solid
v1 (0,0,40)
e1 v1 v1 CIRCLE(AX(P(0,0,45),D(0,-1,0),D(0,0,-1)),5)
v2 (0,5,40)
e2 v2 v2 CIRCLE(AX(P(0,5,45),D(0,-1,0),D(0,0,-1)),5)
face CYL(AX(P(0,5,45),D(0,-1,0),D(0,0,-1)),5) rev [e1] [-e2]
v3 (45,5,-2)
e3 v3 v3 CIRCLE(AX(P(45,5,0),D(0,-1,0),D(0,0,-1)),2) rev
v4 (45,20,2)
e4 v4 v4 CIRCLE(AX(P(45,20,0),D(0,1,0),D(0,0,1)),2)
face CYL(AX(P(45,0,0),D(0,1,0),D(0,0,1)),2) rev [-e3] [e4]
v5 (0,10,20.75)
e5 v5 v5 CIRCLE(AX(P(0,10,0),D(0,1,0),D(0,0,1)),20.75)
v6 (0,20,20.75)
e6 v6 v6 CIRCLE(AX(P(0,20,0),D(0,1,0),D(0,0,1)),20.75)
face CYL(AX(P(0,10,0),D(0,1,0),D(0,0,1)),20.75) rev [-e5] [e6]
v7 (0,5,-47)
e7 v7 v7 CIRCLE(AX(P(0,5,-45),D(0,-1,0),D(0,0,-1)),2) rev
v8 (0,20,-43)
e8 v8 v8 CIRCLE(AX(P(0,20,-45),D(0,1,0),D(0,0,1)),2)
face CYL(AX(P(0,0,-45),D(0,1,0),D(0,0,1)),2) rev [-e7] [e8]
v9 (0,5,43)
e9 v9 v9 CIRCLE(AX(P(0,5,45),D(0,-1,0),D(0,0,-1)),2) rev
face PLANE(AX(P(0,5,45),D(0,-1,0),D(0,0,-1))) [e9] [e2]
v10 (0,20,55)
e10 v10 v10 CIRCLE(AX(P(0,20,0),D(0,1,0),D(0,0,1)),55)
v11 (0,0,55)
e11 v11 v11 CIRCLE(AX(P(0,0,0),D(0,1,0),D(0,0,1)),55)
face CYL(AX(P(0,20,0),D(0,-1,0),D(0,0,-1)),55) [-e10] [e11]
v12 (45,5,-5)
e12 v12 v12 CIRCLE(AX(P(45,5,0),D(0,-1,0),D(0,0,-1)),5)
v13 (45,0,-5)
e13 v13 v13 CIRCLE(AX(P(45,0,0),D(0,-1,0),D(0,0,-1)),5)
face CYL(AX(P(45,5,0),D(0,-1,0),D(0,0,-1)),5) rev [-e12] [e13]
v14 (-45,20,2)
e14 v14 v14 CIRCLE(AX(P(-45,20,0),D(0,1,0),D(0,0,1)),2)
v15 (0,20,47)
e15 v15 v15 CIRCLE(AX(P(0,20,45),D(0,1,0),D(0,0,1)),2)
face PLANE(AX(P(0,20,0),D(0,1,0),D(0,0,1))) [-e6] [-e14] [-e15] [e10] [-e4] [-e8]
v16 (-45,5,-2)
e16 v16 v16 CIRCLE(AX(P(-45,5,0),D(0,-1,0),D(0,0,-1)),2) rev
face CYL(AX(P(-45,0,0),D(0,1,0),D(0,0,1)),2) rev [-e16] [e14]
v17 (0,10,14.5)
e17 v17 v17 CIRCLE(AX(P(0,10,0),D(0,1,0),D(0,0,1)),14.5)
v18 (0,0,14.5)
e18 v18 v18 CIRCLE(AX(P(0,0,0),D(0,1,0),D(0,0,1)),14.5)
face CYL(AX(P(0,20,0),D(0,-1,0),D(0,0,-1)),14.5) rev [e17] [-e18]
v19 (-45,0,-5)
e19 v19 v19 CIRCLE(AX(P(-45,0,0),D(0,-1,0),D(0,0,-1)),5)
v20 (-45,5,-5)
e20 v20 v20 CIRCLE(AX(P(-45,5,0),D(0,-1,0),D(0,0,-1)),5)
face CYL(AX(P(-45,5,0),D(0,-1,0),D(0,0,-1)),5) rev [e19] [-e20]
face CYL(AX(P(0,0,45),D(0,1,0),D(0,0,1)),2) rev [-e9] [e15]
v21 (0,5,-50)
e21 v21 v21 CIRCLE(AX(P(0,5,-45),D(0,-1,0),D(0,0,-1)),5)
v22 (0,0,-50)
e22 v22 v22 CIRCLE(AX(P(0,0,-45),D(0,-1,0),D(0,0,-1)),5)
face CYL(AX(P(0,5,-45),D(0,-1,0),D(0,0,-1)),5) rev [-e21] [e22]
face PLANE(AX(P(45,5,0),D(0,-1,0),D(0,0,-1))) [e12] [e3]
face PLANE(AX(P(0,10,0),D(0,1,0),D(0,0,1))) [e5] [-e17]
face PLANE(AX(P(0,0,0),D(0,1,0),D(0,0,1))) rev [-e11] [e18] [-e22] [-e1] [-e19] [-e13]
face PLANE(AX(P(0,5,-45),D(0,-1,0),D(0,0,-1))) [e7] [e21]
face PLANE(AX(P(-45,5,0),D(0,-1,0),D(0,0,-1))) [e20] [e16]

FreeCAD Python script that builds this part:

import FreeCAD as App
import Part
import Sketcher

doc = App.newDocument("Part")
params = doc.addObject("Spreadsheet::Sheet", "Params")
for row, (alias, value) in enumerate([
    ("sketch1_diameter", "110 mm"),
    ("sketch1_diameter2", "29 mm"),
    ("pad1_length", "20 mm"),
    ("sketch2_diameter", "41.5 mm"),
    ("pocket1_length", "10 mm"),
    ("sketch3_diameter", "4 mm"),
    ("pocket2_length", "20 mm"),
    ("sketch4_diameter", "10 mm"),
    ("pocket3_length", "5 mm"),
], start=1):
    params.set(f"A{row}", alias)
    params.set(f"B{row}", "=" + value)
    params.setAlias(f"B{row}", alias)

body = doc.addObject("PartDesign::Body", "Body")

sketch1 = body.newObject("Sketcher::SketchObject", "Sketch")
sketch1.AttachmentSupport = (doc.getObject("XZ_Plane"), [""])
sketch1.MapMode = "FlatFace"
sketch1.addGeometry([
    Part.Circle(App.Vector(0, 0, 0), App.Vector(0, 0, 1), 55),
    Part.Circle(App.Vector(0, 0, 0), App.Vector(0, 0, 1), 14.5),
], False)
sketch1.addConstraint([
    Sketcher.Constraint("Coincident", 0, 3, -1, 1),
    Sketcher.Constraint("Coincident", 1, 3, -1, 1),
    Sketcher.Constraint("Diameter", 0, 110.0),
    Sketcher.Constraint("Diameter", 1, 29.0),
])
sketch1.setExpression("Constraints[2]", "Params.sketch1_diameter")
sketch1.setExpression("Constraints[3]", "Params.sketch1_diameter2")
pad1 = body.newObject("PartDesign::Pad", "Pad")
pad1.Profile = sketch1
pad1.setExpression("Length", "Params.pad1_length")
pad1.Reversed = True

sketch2 = body.newObject("Sketcher::SketchObject", "Sketch001")
sketch2.AttachmentSupport = (doc.getObject("XZ_Plane"), [""])
sketch2.MapMode = "FlatFace"
sketch2.AttachmentOffset = App.Placement(App.Vector(0, 0, -20), App.Rotation())
sketch2.addGeometry(Part.Circle(App.Vector(0, 0, 0), App.Vector(0, 0, 1), 20.75), False)
sketch2.addConstraint([
    Sketcher.Constraint("Coincident", 0, 3, -1, 1),
    Sketcher.Constraint("Diameter", 0, 41.5),
])
sketch2.setExpression("Constraints[1]", "Params.sketch2_diameter")
pocket1 = body.newObject("PartDesign::Pocket", "Pocket")
pocket1.Profile = sketch2
pocket1.setExpression("Length", "Params.pocket1_length")
pocket1.Reversed = True

sketch3 = body.newObject("Sketcher::SketchObject", "Sketch002")
sketch3.AttachmentSupport = (doc.getObject("XZ_Plane"), [""])
sketch3.MapMode = "FlatFace"
sketch3.AttachmentOffset = App.Placement(App.Vector(0, 0, -20), App.Rotation())
sketch3.addGeometry([
    Part.Circle(App.Vector(0, -45, 0), App.Vector(0, 0, 1), 2),
    Part.Circle(App.Vector(45, 0, 0), App.Vector(0, 0, 1), 2),
    Part.Circle(App.Vector(0, 45, 0), App.Vector(0, 0, 1), 2),
    Part.Circle(App.Vector(-45, 0, 0), App.Vector(0, 0, 1), 2),
], False)
sketch3.addConstraint([
    Sketcher.Constraint("Equal", 0, 1),
    Sketcher.Constraint("Equal", 1, 2),
    Sketcher.Constraint("Equal", 2, 3),
    Sketcher.Constraint("Symmetric", 0, 3, 2, 3, -1, 1),
    Sketcher.Constraint("Symmetric", 1, 3, 3, 3, -1, 1),
    Sketcher.Constraint("PointOnObject", 0, 3, -2),
    Sketcher.Constraint("PointOnObject", 1, 3, -1),
    Sketcher.Constraint("Diameter", 0, 4.0),
    Sketcher.Constraint("DistanceY", 0, 3, -1, 1, 45.0),
    Sketcher.Constraint("DistanceX", -1, 1, 1, 3, 45.0),
])
sketch3.setExpression("Constraints[7]", "Params.sketch3_diameter")
pocket2 = body.newObject("PartDesign::Pocket", "Pocket001")
pocket2.Profile = sketch3
pocket2.setExpression("Length", "Params.pocket2_length")
pocket2.Reversed = True

sketch4 = body.newObject("Sketcher::SketchObject", "Sketch003")
sketch4.AttachmentSupport = (doc.getObject("XZ_Plane"), [""])
sketch4.MapMode = "FlatFace"
sketch4.addGeometry([
    Part.Circle(App.Vector(0, 45, 0), App.Vector(0, 0, 1), 5),
    Part.Circle(App.Vector(45, 0, 0), App.Vector(0, 0, 1), 5),
    Part.Circle(App.Vector(0, -45, 0), App.Vector(0, 0, 1), 5),
    Part.Circle(App.Vector(-45, 0, 0), App.Vector(0, 0, 1), 5),
], False)
sketch4.addConstraint([
    Sketcher.Constraint("Equal", 0, 1),
    Sketcher.Constraint("Equal", 1, 2),
    Sketcher.Constraint("Equal", 2, 3),
    Sketcher.Constraint("Symmetric", 0, 3, 2, 3, -1, 1),
    Sketcher.Constraint("Symmetric", 1, 3, 3, 3, -1, 1),
    Sketcher.Constraint("PointOnObject", 0, 3, -2),
    Sketcher.Constraint("PointOnObject", 1, 3, -1),
    Sketcher.Constraint("Diameter", 0, 10.0),
    Sketcher.Constraint("DistanceY", -1, 1, 0, 3, 45.0),
    Sketcher.Constraint("DistanceX", -1, 1, 1, 3, 45.0),
])
sketch4.setExpression("Constraints[7]", "Params.sketch4_diameter")
pocket3 = body.newObject("PartDesign::Pocket", "Pocket002")
pocket3.Profile = sketch4
pocket3.setExpression("Length", "Params.pocket3_length")

doc.recompute()
